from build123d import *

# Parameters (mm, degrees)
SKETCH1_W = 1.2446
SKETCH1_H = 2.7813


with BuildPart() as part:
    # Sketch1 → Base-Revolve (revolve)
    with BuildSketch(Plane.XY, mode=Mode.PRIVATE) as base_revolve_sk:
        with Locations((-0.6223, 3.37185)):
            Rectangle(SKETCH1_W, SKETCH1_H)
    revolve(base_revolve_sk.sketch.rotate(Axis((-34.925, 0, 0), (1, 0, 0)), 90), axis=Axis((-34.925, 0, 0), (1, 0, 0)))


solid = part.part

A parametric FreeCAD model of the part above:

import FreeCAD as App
import Part
import Sketcher
from FreeCAD import Vector
Q = App.Units.Quantity


def add_polygon(sketch, points):
    """Adds a closed chain of lines whose ends are joined by coincident constraints."""
    first, n = sketch.GeometryCount, len(points)
    for a, b in zip(points, points[1:] + points[:1]):
        sketch.addGeometry(Part.LineSegment(App.Vector(*a, 0), App.Vector(*b, 0)), False)
    for i in range(n):
        sketch.addConstraint(Sketcher.Constraint("Coincident", first + i, 2, first + (i + 1) % n, 1))

doc = App.newDocument("Part")
body = doc.addObject("PartDesign::Body", "Body")

sketch1 = doc.addObject("Sketcher::SketchObject", "Sketch")
body.addObject(sketch1)
sketch1.AttachmentSupport = (doc.XY_Plane, [""])
sketch1.MapMode = "FlatFace"
add_polygon(sketch1, [(-1.2446, 4.7625), (-1.2446, 1.9812), (0, 1.9812), (0, 4.7625)])
sketch1.addConstraint([
    Sketcher.Constraint("Vertical", 0),
    Sketcher.Constraint("Horizontal", 1),
    Sketcher.Constraint("Vertical", 2),
    Sketcher.Constraint("Horizontal", 3),
    Sketcher.Constraint("PointOnObject", 1, 2, -2),
    Sketcher.Constraint("DistanceX", 1, 1, 1, 2, Q("0.049 in")),
    Sketcher.Constraint("DistanceY", 0, 2, 0, 1, Q("0.1095 in")),
    Sketcher.Constraint("DistanceY", -1, 1, 0, 2, Q("0.078 in")),
])
revolution = doc.addObject("PartDesign::Revolution", "Revolution")
body.addObject(revolution)
revolution.Profile = sketch1
revolution.ReferenceAxis = (sketch1, ["H_Axis"])
revolution.Angle = 360

doc.recompute()
